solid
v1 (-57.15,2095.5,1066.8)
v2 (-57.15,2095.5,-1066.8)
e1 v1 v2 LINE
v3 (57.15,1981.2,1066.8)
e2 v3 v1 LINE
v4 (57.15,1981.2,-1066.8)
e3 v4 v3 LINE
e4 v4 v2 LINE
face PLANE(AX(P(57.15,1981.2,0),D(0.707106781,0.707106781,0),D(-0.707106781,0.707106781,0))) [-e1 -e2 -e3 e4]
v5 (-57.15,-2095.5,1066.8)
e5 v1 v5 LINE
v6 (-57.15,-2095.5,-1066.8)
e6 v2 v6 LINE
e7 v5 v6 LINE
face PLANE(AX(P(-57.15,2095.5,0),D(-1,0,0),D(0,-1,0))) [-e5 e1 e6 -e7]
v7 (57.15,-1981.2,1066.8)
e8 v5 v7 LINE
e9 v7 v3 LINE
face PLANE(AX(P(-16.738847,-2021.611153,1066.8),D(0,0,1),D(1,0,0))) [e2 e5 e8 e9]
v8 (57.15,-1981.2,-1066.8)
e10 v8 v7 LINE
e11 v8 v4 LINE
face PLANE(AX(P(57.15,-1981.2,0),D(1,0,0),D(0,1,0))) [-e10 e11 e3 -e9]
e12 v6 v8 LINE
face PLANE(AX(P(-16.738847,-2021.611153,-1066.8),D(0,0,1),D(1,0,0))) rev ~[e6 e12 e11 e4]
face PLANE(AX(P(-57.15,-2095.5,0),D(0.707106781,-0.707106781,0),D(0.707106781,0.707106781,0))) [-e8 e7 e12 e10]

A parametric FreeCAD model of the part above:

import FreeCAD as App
import Part
import Sketcher
from FreeCAD import Vector
Q = App.Units.Quantity


def add_polygon(sketch, points):
    """Adds a closed chain of lines whose ends are joined by coincident constraints."""
    first, n = sketch.GeometryCount, len(points)
    for a, b in zip(points, points[1:] + points[:1]):
        sketch.addGeometry(Part.LineSegment(App.Vector(*a, 0), App.Vector(*b, 0)), False)
    for i in range(n):
        sketch.addConstraint(Sketcher.Constraint("Coincident", first + i, 2, first + (i + 1) % n, 1))

doc = App.newDocument("Part")
body = doc.addObject("PartDesign::Body", "Body")

# Sketch on XY plane
sketch1 = body.newObject("Sketcher::SketchObject", "Sketch")
sketch1.AttachmentSupport = (doc.getObject("XY_Plane"), [""])
sketch1.MapMode = "FlatFace"
add_polygon(sketch1, [(-2108, 57), (-1994, -57), (1994, -57), (2108, 57)])  # lines 0-3
sketch1.addConstraint([
    Sketcher.Constraint("Horizontal", 1),
    Sketcher.Constraint("Horizontal", 3),
    Sketcher.Constraint("Perpendicular", 0, 2),
    Sketcher.Constraint("Equal", 0, 2),
    Sketcher.Constraint("DistanceX", 1, 1, 1, 2, Q("157 in")),
    Sketcher.Constraint("DistanceX", 3, 2, 3, 1, Q("166 in")),
    Sketcher.Constraint("DistanceX", -1, 1, 2, 2, Q("83 in")),
    Sketcher.Constraint("DistanceY", 0, 2, -1, 1, Q("2.25 in")),
])
pad1 = body.newObject("PartDesign::Pad", "Pad")
pad1.Profile = sketch1
pad1.Length = Q("84 in")
pad1.Midplane = True
body2 = doc.addObject("PartDesign::Body", "Body001")

# Sketch on XY plane
sketch2 = body2.newObject("Sketcher::SketchObject", "Sketch001")
sketch2.AttachmentSupport = (doc.getObject("XY_Plane001"), [""])
sketch2.MapMode = "FlatFace"
add_polygon(sketch2, [(-57, -2096), (57, -1981), (57, 1981), (-57, 2096)])  # lines 0-3
sketch2.addConstraint([
    Sketcher.Constraint("Vertical", 1),
    Sketcher.Constraint("Vertical", 3),
    Sketcher.Constraint("Perpendicular", 0, 2),
    Sketcher.Constraint("Equal", 0, 2),
    Sketcher.Constraint("DistanceY", 1, 1, 1, 2, Q("156 in")),
    Sketcher.Constraint("DistanceY", 3, 2, 3, 1, Q("165 in")),
    Sketcher.Constraint("DistanceY", 0, 2, -1, 1, Q("78 in")),
    Sketcher.Constraint("DistanceX", -1, 1, 0, 2, Q("2.25 in")),
])
pad2 = body2.newObject("PartDesign::Pad", "Pad001")
pad2.Profile = sketch2
pad2.Length = Q("84 in")
pad2.Midplane = True
body.Visibility = False

doc.recompute()
